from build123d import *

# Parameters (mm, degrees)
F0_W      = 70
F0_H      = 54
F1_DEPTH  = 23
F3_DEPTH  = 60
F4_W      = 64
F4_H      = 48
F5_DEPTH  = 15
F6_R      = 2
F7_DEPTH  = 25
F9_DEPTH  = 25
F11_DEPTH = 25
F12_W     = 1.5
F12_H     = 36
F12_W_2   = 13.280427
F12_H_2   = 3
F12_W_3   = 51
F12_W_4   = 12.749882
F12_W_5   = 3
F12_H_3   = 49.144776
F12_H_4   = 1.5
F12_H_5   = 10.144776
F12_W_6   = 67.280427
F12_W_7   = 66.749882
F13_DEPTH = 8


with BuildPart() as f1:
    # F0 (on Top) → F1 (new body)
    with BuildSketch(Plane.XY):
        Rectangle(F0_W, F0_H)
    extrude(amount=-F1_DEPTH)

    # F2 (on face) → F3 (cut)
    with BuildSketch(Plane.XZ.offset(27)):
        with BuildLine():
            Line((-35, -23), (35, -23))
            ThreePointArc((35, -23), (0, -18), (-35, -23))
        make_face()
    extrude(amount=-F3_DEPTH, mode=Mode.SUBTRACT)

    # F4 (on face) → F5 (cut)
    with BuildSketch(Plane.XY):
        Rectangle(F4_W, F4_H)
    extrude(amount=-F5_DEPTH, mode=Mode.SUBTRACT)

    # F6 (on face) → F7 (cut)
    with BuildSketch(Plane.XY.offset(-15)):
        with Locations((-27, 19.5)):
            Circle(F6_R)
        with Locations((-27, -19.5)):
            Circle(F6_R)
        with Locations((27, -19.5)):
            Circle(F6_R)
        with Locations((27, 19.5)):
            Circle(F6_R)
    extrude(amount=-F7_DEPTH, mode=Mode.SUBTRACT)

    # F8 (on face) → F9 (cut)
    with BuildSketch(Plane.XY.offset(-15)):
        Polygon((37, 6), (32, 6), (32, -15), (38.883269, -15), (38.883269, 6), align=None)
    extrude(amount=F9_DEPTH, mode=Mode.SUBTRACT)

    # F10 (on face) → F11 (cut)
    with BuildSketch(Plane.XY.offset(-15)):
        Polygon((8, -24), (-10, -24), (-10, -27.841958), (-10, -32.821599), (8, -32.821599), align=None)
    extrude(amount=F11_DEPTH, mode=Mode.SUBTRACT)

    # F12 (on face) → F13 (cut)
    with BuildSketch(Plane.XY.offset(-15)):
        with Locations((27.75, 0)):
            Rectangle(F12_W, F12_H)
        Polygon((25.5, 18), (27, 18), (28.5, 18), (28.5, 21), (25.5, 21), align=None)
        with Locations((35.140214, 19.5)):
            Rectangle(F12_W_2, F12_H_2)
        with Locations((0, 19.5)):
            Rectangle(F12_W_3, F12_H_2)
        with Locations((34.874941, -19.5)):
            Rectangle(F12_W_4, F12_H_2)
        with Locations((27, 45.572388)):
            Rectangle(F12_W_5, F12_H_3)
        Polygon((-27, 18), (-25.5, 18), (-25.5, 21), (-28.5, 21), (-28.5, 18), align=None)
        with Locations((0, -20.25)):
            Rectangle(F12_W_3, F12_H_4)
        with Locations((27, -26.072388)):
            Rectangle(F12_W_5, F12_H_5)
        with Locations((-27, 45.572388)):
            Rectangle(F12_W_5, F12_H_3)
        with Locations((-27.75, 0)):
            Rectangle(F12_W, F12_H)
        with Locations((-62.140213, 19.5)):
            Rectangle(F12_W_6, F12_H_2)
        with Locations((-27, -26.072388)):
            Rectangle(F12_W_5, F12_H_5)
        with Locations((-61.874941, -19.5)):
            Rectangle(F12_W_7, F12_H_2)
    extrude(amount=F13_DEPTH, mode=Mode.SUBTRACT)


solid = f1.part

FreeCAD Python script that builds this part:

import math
import FreeCAD as App
import Part
import Sketcher
Q = App.Units.Quantity

doc = App.newDocument("Part")
body = doc.addObject("PartDesign::Body", "Body")

sketch1 = doc.addObject("Sketcher::SketchObject", "Sketch")
body.addObject(sketch1)
sketch1.AttachmentSupport = (doc.XY_Plane, [""])
sketch1.MapMode = "FlatFace"
sketch1.addGeometry(Part.LineSegment(App.Vector(-35, 27, 0), App.Vector(-35, -27, 0)), False)
sketch1.addGeometry(Part.LineSegment(App.Vector(-35, -27, 0), App.Vector(35, -27, 0)), False)
sketch1.addGeometry(Part.LineSegment(App.Vector(35, -27, 0), App.Vector(35, 27, 0)), False)
sketch1.addGeometry(Part.LineSegment(App.Vector(35, 27, 0), App.Vector(-35, 27, 0)), False)
sketch1.addConstraint(Sketcher.Constraint("Coincident", 0, 2, 1, 1))
sketch1.addConstraint(Sketcher.Constraint("Coincident", 1, 2, 2, 1))
sketch1.addConstraint(Sketcher.Constraint("Coincident", 2, 2, 3, 1))
sketch1.addConstraint(Sketcher.Constraint("Coincident", 3, 2, 0, 1))
sketch1.addConstraint(Sketcher.Constraint("Vertical", 0))
sketch1.addConstraint(Sketcher.Constraint("Horizontal", 1))
sketch1.addConstraint(Sketcher.Constraint("Vertical", 2))
sketch1.addConstraint(Sketcher.Constraint("Horizontal", 3))
sketch1.addConstraint(Sketcher.Constraint("Symmetric", 0, 2, 2, 2, -1, 1))
sketch1.addConstraint(Sketcher.Constraint("DistanceX", 1, 1, 1, 2, Q("70 mm")))
sketch1.addConstraint(Sketcher.Constraint("DistanceY", 0, 2, 0, 1, Q("54 mm")))
pad1 = doc.addObject("PartDesign::Pad", "Pad")
body.addObject(pad1)
pad1.Profile = sketch1
pad1.Length = 23
pad1.Reversed = True

sketch2 = doc.addObject("Sketcher::SketchObject", "Sketch001")
body.addObject(sketch2)
sketch2.AttachmentSupport = (doc.XZ_Plane, [""])
sketch2.MapMode = "FlatFace"
sketch2.AttachmentOffset = App.Placement(App.Vector(0, 0, 27), App.Rotation())
sketch2.addGeometry(Part.LineSegment(App.Vector(-35, -23, 0), App.Vector(35, -23, 0)), False)
sketch2.addGeometry(Part.ArcOfCircle(Part.Circle(App.Vector(0, -143, 0), App.Vector(0, 0, 1), 125), math.radians(74), math.radians(106)), False)
sketch2.addConstraint(Sketcher.Constraint("Coincident", 0, 1, 1, 2))
sketch2.addConstraint(Sketcher.Constraint("Coincident", 1, 1, 0, 2))
sketch2.addConstraint(Sketcher.Constraint("Horizontal", 0))
sketch2.addConstraint(Sketcher.Constraint("PointOnObject", 1, 3, -2))
sketch2.addConstraint(Sketcher.Constraint("Radius", 1, Q("125 mm")))
sketch2.addConstraint(Sketcher.Constraint("DistanceX", 0, 1, 0, 2, Q("70 mm")))
sketch2.addConstraint(Sketcher.Constraint("DistanceY", 1, 3, -1, 1, Q("143 mm")))
pocket1 = doc.addObject("PartDesign::Pocket", "Pocket")
body.addObject(pocket1)
pocket1.Profile = sketch2
pocket1.Length = 60

sketch3 = doc.addObject("Sketcher::SketchObject", "Sketch002")
body.addObject(sketch3)
sketch3.AttachmentSupport = (doc.XY_Plane, [""])
sketch3.MapMode = "FlatFace"
sketch3.addGeometry(Part.LineSegment(App.Vector(-32, 24, 0), App.Vector(-32, -24, 0)), False)
sketch3.addGeometry(Part.LineSegment(App.Vector(-32, -24, 0), App.Vector(32, -24, 0)), False)
sketch3.addGeometry(Part.LineSegment(App.Vector(32, -24, 0), App.Vector(32, 24, 0)), False)
sketch3.addGeometry(Part.LineSegment(App.Vector(32, 24, 0), App.Vector(-32, 24, 0)), False)
sketch3.addConstraint(Sketcher.Constraint("Coincident", 0, 2, 1, 1))
sketch3.addConstraint(Sketcher.Constraint("Coincident", 1, 2, 2, 1))
sketch3.addConstraint(Sketcher.Constraint("Coincident", 2, 2, 3, 1))
sketch3.addConstraint(Sketcher.Constraint("Coincident", 3, 2, 0, 1))
sketch3.addConstraint(Sketcher.Constraint("Vertical", 0))
sketch3.addConstraint(Sketcher.Constraint("Horizontal", 1))
sketch3.addConstraint(Sketcher.Constraint("Vertical", 2))
sketch3.addConstraint(Sketcher.Constraint("Horizontal", 3))
sketch3.addConstraint(Sketcher.Constraint("Symmetric", 0, 2, 2, 2, -1, 1))
sketch3.addConstraint(Sketcher.Constraint("DistanceX", 1, 1, 1, 2, Q("64 mm")))
sketch3.addConstraint(Sketcher.Constraint("DistanceY", 0, 2, 0, 1, Q("48 mm")))
pocket2 = doc.addObject("PartDesign::Pocket", "Pocket001")
body.addObject(pocket2)
pocket2.Profile = sketch3
pocket2.Length = 15

sketch4 = doc.addObject("Sketcher::SketchObject", "Sketch003")
body.addObject(sketch4)
sketch4.AttachmentSupport = (doc.XY_Plane, [""])
sketch4.MapMode = "FlatFace"
sketch4.AttachmentOffset = App.Placement(App.Vector(0, 0, -15), App.Rotation())
sketch4.addGeometry(Part.Circle(App.Vector(-27, 19.5, 0), App.Vector(0, 0, 1), 2), False)
sketch4.addGeometry(Part.Circle(App.Vector(-27, -19.5, 0), App.Vector(0, 0, 1), 2), False)
sketch4.addGeometry(Part.Circle(App.Vector(27, -19.5, 0), App.Vector(0, 0, 1), 2), False)
sketch4.addGeometry(Part.Circle(App.Vector(27, 19.5, 0), App.Vector(0, 0, 1), 2), False)
sketch4.addConstraint(Sketcher.Constraint("Equal", 0, 1))
sketch4.addConstraint(Sketcher.Constraint("Equal", 1, 2))
sketch4.addConstraint(Sketcher.Constraint("Equal", 2, 3))
sketch4.addConstraint(Sketcher.Constraint("Symmetric", 0, 3, 2, 3, -1, 1))
sketch4.addConstraint(Sketcher.Constraint("Symmetric", 1, 3, 3, 3, -1, 1))
sketch4.addConstraint(Sketcher.Constraint("Symmetric", 1, 3, 2, 3, -2))
sketch4.addConstraint(Sketcher.Constraint("Diameter", 0, Q("4 mm")))
sketch4.addConstraint(Sketcher.Constraint("DistanceX", 0, 3, -1, 1, Q("27 mm")))
sketch4.addConstraint(Sketcher.Constraint("DistanceY", 1, 3, 0, 3, Q("39 mm")))
pocket3 = doc.addObject("PartDesign::Pocket", "Pocket002")
body.addObject(pocket3)
pocket3.Profile = sketch4
pocket3.Length = 25

sketch5 = doc.addObject("Sketcher::SketchObject", "Sketch004")
body.addObject(sketch5)
sketch5.AttachmentSupport = (doc.XY_Plane, [""])
sketch5.MapMode = "FlatFace"
sketch5.AttachmentOffset = App.Placement(App.Vector(0, 0, -15), App.Rotation())
sketch5.addGeometry(Part.LineSegment(App.Vector(32, 6, 0), App.Vector(32, -15, 0)), False)
sketch5.addGeometry(Part.LineSegment(App.Vector(32, -15, 0), App.Vector(39, -15, 0)), False)
sketch5.addGeometry(Part.LineSegment(App.Vector(39, -15, 0), App.Vector(39, 6, 0)), False)
sketch5.addGeometry(Part.LineSegment(App.Vector(39, 6, 0), App.Vector(32, 6, 0)), False)
sketch5.addConstraint(Sketcher.Constraint("Coincident", 0, 2, 1, 1))
sketch5.addConstraint(Sketcher.Constraint("Coincident", 1, 2, 2, 1))
sketch5.addConstraint(Sketcher.Constraint("Coincident", 2, 2, 3, 1))
sketch5.addConstraint(Sketcher.Constraint("Coincident", 3, 2, 0, 1))
sketch5.addConstraint(Sketcher.Constraint("Vertical", 0))
sketch5.addConstraint(Sketcher.Constraint("Horizontal", 1))
sketch5.addConstraint(Sketcher.Constraint("Vertical", 2))
sketch5.addConstraint(Sketcher.Constraint("Horizontal", 3))
sketch5.addConstraint(Sketcher.Constraint("DistanceY", 0, 2, 0, 1, Q("21 mm")))
sketch5.addConstraint(Sketcher.Constraint("DistanceX", -1, 1, 0, 2, Q("32 mm")))
sketch5.addConstraint(Sketcher.Constraint("DistanceY", 0, 2, -1, 1, Q("15 mm")))
sketch5.addConstraint(Sketcher.Constraint("DistanceX", 1, 1, 1, 2, Q("6.883269 mm")))
pocket4 = doc.addObject("PartDesign::Pocket", "Pocket003")
body.addObject(pocket4)
pocket4.Profile = sketch5
pocket4.Length = 25
pocket4.Reversed = True

sketch6 = doc.addObject("Sketcher::SketchObject", "Sketch005")
body.addObject(sketch6)
sketch6.AttachmentSupport = (doc.XY_Plane, [""])
sketch6.MapMode = "FlatFace"
sketch6.AttachmentOffset = App.Placement(App.Vector(0, 0, -15), App.Rotation())
sketch6.addGeometry(Part.LineSegment(App.Vector(8, -24, 0), App.Vector(-10, -24, 0)), False)
sketch6.addGeometry(Part.LineSegment(App.Vector(-10, -24, 0), App.Vector(-10, -33, 0)), False)
sketch6.addGeometry(Part.LineSegment(App.Vector(-10, -33, 0), App.Vector(8, -33, 0)), False)
sketch6.addGeometry(Part.LineSegment(App.Vector(8, -33, 0), App.Vector(8, -24, 0)), False)
sketch6.addConstraint(Sketcher.Constraint("Coincident", 0, 2, 1, 1))
sketch6.addConstraint(Sketcher.Constraint("Coincident", 1, 2, 2, 1))
sketch6.addConstraint(Sketcher.Constraint("Coincident", 2, 2, 3, 1))
sketch6.addConstraint(Sketcher.Constraint("Coincident", 3, 2, 0, 1))
sketch6.addConstraint(Sketcher.Constraint("Horizontal", 0))
sketch6.addConstraint(Sketcher.Constraint("Vertical", 1))
sketch6.addConstraint(Sketcher.Constraint("Horizontal", 2))
sketch6.addConstraint(Sketcher.Constraint("Vertical", 3))
sketch6.addConstraint(Sketcher.Constraint("DistanceX", 0, 2, 0, 1, Q("18 mm")))
sketch6.addConstraint(Sketcher.Constraint("DistanceX", 0, 2, -1, 1, Q("10 mm")))
sketch6.addConstraint(Sketcher.Constraint("DistanceY", 0, 2, -1, 1, Q("24 mm")))
sketch6.addConstraint(Sketcher.Constraint("DistanceY", 1, 2, 1, 1, Q("8.821599 mm")))
pocket5 = doc.addObject("PartDesign::Pocket", "Pocket004")
body.addObject(pocket5)
pocket5.Profile = sketch6
pocket5.Length = 25
pocket5.Reversed = True

sketch7 = doc.addObject("Sketcher::SketchObject", "Sketch006")
body.addObject(sketch7)
sketch7.AttachmentSupport = (doc.XY_Plane, [""])
sketch7.MapMode = "FlatFace"
sketch7.AttachmentOffset = App.Placement(App.Vector(0, 0, -15), App.Rotation())
sketch7.addGeometry(Part.LineSegment(App.Vector(27, 18, 0), App.Vector(27, -18, 0)), False)
sketch7.addGeometry(Part.LineSegment(App.Vector(27, -18, 0), App.Vector(28.5, -18, 0)), False)
sketch7.addGeometry(Part.LineSegment(App.Vector(28.5, -18, 0), App.Vector(28.5, 70.1, 0)), False)
sketch7.addGeometry(Part.LineSegment(App.Vector(28.5, 70.1, 0), App.Vector(25.5, 70.1, 0)), False)
sketch7.addGeometry(Part.LineSegment(App.Vector(25.5, 70.1, 0), App.Vector(25.5, 21, 0)), False)
sketch7.addGeometry(Part.LineSegment(App.Vector(25.5, 21, 0), App.Vector(-25.5, 21, 0)), False)
sketch7.addGeometry(Part.LineSegment(App.Vector(-25.5, 21, 0), App.Vector(-25.5, 70.1, 0)), False)
sketch7.addGeometry(Part.LineSegment(App.Vector(-25.5, 70.1, 0), App.Vector(-28.5, 70.1, 0)), False)
sketch7.addGeometry(Part.LineSegment(App.Vector(-28.5, 70.1, 0), App.Vector(-28.5, 21, 0)), False)
sketch7.addGeometry(Part.LineSegment(App.Vector(-28.5, 21, 0), App.Vector(-95.8, 21, 0)), False)
sketch7.addGeometry(Part.LineSegment(App.Vector(-95.8, 21, 0), App.Vector(-95.8, 18, 0)), False)
sketch7.addGeometry(Part.LineSegment(App.Vector(-95.8, 18, 0), App.Vector(-28.5, 18, 0)), False)
sketch7.addGeometry(Part.LineSegment(App.Vector(-28.5, 18, 0), App.Vector(-28.5, -18, 0)), False)
sketch7.addGeometry(Part.LineSegment(App.Vector(-28.5, -18, 0), App.Vector(-27, -18, 0)), False)
sketch7.addGeometry(Part.LineSegment(App.Vector(-27, -18, 0), App.Vector(-27, 18, 0)), False)
sketch7.addGeometry(Part.LineSegment(App.Vector(-27, 18, 0), App.Vector(27, 18, 0)), False)
sketch7.addGeometry(Part.LineSegment(App.Vector(28.5, 21, 0), App.Vector(28.5, 18, 0)), False)
sketch7.addGeometry(Part.LineSegment(App.Vector(28.5, 18, 0), App.Vector(41.8, 18, 0)), False)
sketch7.addGeometry(Part.LineSegment(App.Vector(41.8, 18, 0), App.Vector(41.8, 21, 0)), False)
sketch7.addGeometry(Part.LineSegment(App.Vector(41.8, 21, 0), App.Vector(28.5, 21, 0)), False)
sketch7.addGeometry(Part.LineSegment(App.Vector(28.5, -18, 0), App.Vector(28.5, -21, 0)), False)
sketch7.addGeometry(Part.LineSegment(App.Vector(28.5, -21, 0), App.Vector(41.2, -21, 0)), False)
sketch7.addGeometry(Part.LineSegment(App.Vector(41.2, -21, 0), App.Vector(41.2, -18, 0)), False)
sketch7.addGeometry(Part.LineSegment(App.Vector(41.2, -18, 0), App.Vector(28.5, -18, 0)), False)
sketch7.addGeometry(Part.LineSegment(App.Vector(-25.5, -19.5, 0), App.Vector(-25.5, -21, 0)), False)
sketch7.addGeometry(Part.LineSegment(App.Vector(-25.5, -21, 0), App.Vector(25.5, -21, 0)), False)
sketch7.addGeometry(Part.LineSegment(App.Vector(25.5, -21, 0), App.Vector(25.5, -19.5, 0)), False)
sketch7.addGeometry(Part.LineSegment(App.Vector(25.5, -19.5, 0), App.Vector(-25.5, -19.5, 0)), False)
sketch7.addGeometry(Part.LineSegment(App.Vector(25.5, -21, 0), App.Vector(25.5, -31.1, 0)), False)
sketch7.addGeometry(Part.LineSegment(App.Vector(25.5, -31.1, 0), App.Vector(28.5, -31.1, 0)), False)
sketch7.addGeometry(Part.LineSegment(App.Vector(28.5, -31.1, 0), App.Vector(28.5, -21, 0)), False)
sketch7.addGeometry(Part.LineSegment(App.Vector(28.5, -21, 0), App.Vector(25.5, -21, 0)), False)
sketch7.addGeometry(Part.LineSegment(App.Vector(-28.5, -21, 0), App.Vector(-28.5, -31.1, 0)), False)
sketch7.addGeometry(Part.LineSegment(App.Vector(-28.5, -31.1, 0), App.Vector(-25.5, -31.1, 0)), False)
sketch7.addGeometry(Part.LineSegment(App.Vector(-25.5, -31.1, 0), App.Vector(-25.5, -21, 0)), False)
sketch7.addGeometry(Part.LineSegment(App.Vector(-25.5, -21, 0), App.Vector(-28.5, -21, 0)), False)
sketch7.addGeometry(Part.LineSegment(App.Vector(-95.2, -18, 0), App.Vector(-95.2, -21, 0)), False)
sketch7.addGeometry(Part.LineSegment(App.Vector(-95.2, -21, 0), App.Vector(-28.5, -21, 0)), False)
sketch7.addGeometry(Part.LineSegment(App.Vector(-28.5, -21, 0), App.Vector(-28.5, -18, 0)), False)
sketch7.addGeometry(Part.LineSegment(App.Vector(-28.5, -18, 0), App.Vector(-95.2, -18, 0)), False)
sketch7.addConstraint(Sketcher.Constraint("Coincident", 0, 2, 1, 1))
sketch7.addConstraint(Sketcher.Constraint("Coincident", 1, 2, 2, 1))
sketch7.addConstraint(Sketcher.Constraint("Coincident", 2, 2, 3, 1))
sketch7.addConstraint(Sketcher.Constraint("Coincident", 3, 2, 4, 1))
sketch7.addConstraint(Sketcher.Constraint("Coincident", 4, 2, 5, 1))
sketch7.addConstraint(Sketcher.Constraint("Coincident", 5, 2, 6, 1))
sketch7.addConstraint(Sketcher.Constraint("Coincident", 6, 2, 7, 1))
sketch7.addConstraint(Sketcher.Constraint("Coincident", 7, 2, 8, 1))
sketch7.addConstraint(Sketcher.Constraint("Coincident", 8, 2, 9, 1))
sketch7.addConstraint(Sketcher.Constraint("Coincident", 9, 2, 10, 1))
sketch7.addConstraint(Sketcher.Constraint("Coincident", 10, 2, 11, 1))
sketch7.addConstraint(Sketcher.Constraint("Coincident", 11, 2, 12, 1))
sketch7.addConstraint(Sketcher.Constraint("Coincident", 12, 2, 13, 1))
sketch7.addConstraint(Sketcher.Constraint("Coincident", 13, 2, 14, 1))
sketch7.addConstraint(Sketcher.Constraint("Coincident", 14, 2, 15, 1))
sketch7.addConstraint(Sketcher.Constraint("Coincident", 15, 2, 0, 1))
sketch7.addConstraint(Sketcher.Constraint("Coincident", 16, 2, 17, 1))
sketch7.addConstraint(Sketcher.Constraint("Coincident", 17, 2, 18, 1))
sketch7.addConstraint(Sketcher.Constraint("Coincident", 18, 2, 19, 1))
sketch7.addConstraint(Sketcher.Constraint("Coincident", 19, 2, 16, 1))
sketch7.addConstraint(Sketcher.Constraint("Coincident", 20, 2, 21, 1))
sketch7.addConstraint(Sketcher.Constraint("Coincident", 21, 2, 22, 1))
sketch7.addConstraint(Sketcher.Constraint("Coincident", 22, 2, 23, 1))
sketch7.addConstraint(Sketcher.Constraint("Coincident", 23, 2, 20, 1))
sketch7.addConstraint(Sketcher.Constraint("Coincident", 24, 2, 25, 1))
sketch7.addConstraint(Sketcher.Constraint("Coincident", 25, 2, 26, 1))
sketch7.addConstraint(Sketcher.Constraint("Coincident", 26, 2, 27, 1))
sketch7.addConstraint(Sketcher.Constraint("Coincident", 27, 2, 24, 1))
sketch7.addConstraint(Sketcher.Constraint("Coincident", 28, 2, 29, 1))
sketch7.addConstraint(Sketcher.Constraint("Coincident", 29, 2, 30, 1))
sketch7.addConstraint(Sketcher.Constraint("Coincident", 30, 2, 31, 1))
sketch7.addConstraint(Sketcher.Constraint("Coincident", 31, 2, 28, 1))
sketch7.addConstraint(Sketcher.Constraint("Coincident", 32, 2, 33, 1))
sketch7.addConstraint(Sketcher.Constraint("Coincident", 33, 2, 34, 1))
sketch7.addConstraint(Sketcher.Constraint("Coincident", 34, 2, 35, 1))
sketch7.addConstraint(Sketcher.Constraint("Coincident", 35, 2, 32, 1))
sketch7.addConstraint(Sketcher.Constraint("Coincident", 36, 2, 37, 1))
sketch7.addConstraint(Sketcher.Constraint("Coincident", 37, 2, 38, 1))
sketch7.addConstraint(Sketcher.Constraint("Coincident", 38, 2, 39, 1))
sketch7.addConstraint(Sketcher.Constraint("Coincident", 39, 2, 36, 1))
sketch7.addConstraint(Sketcher.Constraint("Vertical", 0))
sketch7.addConstraint(Sketcher.Constraint("Horizontal", 1))
sketch7.addConstraint(Sketcher.Constraint("Vertical", 2))
sketch7.addConstraint(Sketcher.Constraint("Horizontal", 3))
sketch7.addConstraint(Sketcher.Constraint("Vertical", 4))
sketch7.addConstraint(Sketcher.Constraint("Horizontal", 5))
sketch7.addConstraint(Sketcher.Constraint("Vertical", 6))
sketch7.addConstraint(Sketcher.Constraint("Horizontal", 7))
sketch7.addConstraint(Sketcher.Constraint("Vertical", 8))
sketch7.addConstraint(Sketcher.Constraint("Horizontal", 9))
sketch7.addConstraint(Sketcher.Constraint("Vertical", 10))
sketch7.addConstraint(Sketcher.Constraint("Horizontal", 11))
sketch7.addConstraint(Sketcher.Constraint("Vertical", 12))
sketch7.addConstraint(Sketcher.Constraint("Horizontal", 13))
sketch7.addConstraint(Sketcher.Constraint("Vertical", 14))
sketch7.addConstraint(Sketcher.Constraint("Horizontal", 15))
sketch7.addConstraint(Sketcher.Constraint("Vertical", 16))
sketch7.addConstraint(Sketcher.Constraint("Horizontal", 17))
sketch7.addConstraint(Sketcher.Constraint("Vertical", 18))
sketch7.addConstraint(Sketcher.Constraint("Horizontal", 19))
sketch7.addConstraint(Sketcher.Constraint("Vertical", 20))
sketch7.addConstraint(Sketcher.Constraint("Horizontal", 21))
sketch7.addConstraint(Sketcher.Constraint("Vertical", 22))
sketch7.addConstraint(Sketcher.Constraint("Horizontal", 23))
sketch7.addConstraint(Sketcher.Constraint("Vertical", 24))
sketch7.addConstraint(Sketcher.Constraint("Horizontal", 25))
sketch7.addConstraint(Sketcher.Constraint("Vertical", 26))
sketch7.addConstraint(Sketcher.Constraint("Horizontal", 27))
sketch7.addConstraint(Sketcher.Constraint("Vertical", 28))
sketch7.addConstraint(Sketcher.Constraint("Horizontal", 29))
sketch7.addConstraint(Sketcher.Constraint("Vertical", 30))
sketch7.addConstraint(Sketcher.Constraint("Horizontal", 31))
sketch7.addConstraint(Sketcher.Constraint("Vertical", 32))
sketch7.addConstraint(Sketcher.Constraint("Horizontal", 33))
sketch7.addConstraint(Sketcher.Constraint("Vertical", 34))
sketch7.addConstraint(Sketcher.Constraint("Horizontal", 35))
sketch7.addConstraint(Sketcher.Constraint("Vertical", 36))
sketch7.addConstraint(Sketcher.Constraint("Horizontal", 37))
sketch7.addConstraint(Sketcher.Constraint("Vertical", 38))
sketch7.addConstraint(Sketcher.Constraint("Horizontal", 39))
sketch7.addConstraint(Sketcher.Constraint("Coincident", 23, 2, 1, 2))
sketch7.addConstraint(Sketcher.Constraint("Coincident", 30, 2, 20, 2))
sketch7.addConstraint(Sketcher.Constraint("Coincident", 31, 2, 25, 2))
sketch7.addConstraint(Sketcher.Constraint("Coincident", 34, 2, 24, 2))
sketch7.addConstraint(Sketcher.Constraint("Coincident", 37, 2, 35, 2))
sketch7.addConstraint(Sketcher.Constraint("Coincident", 38, 2, 12, 2))
sketch7.addConstraint(Sketcher.Constraint("Symmetric", 1, 2, 11, 2, -1, 1))
sketch7.addConstraint(Sketcher.Constraint("Symmetric", 0, 2, 14, 2, -1, 1))
sketch7.addConstraint(Sketcher.Constraint("Symmetric", 12, 2, 16, 2, -1, 1))
sketch7.addConstraint(Sketcher.Constraint("Symmetric", 8, 2, 20, 2, -1, 1))
sketch7.addConstraint(Sketcher.Constraint("Symmetric", 4, 2, 24, 2, -1, 1))
sketch7.addConstraint(Sketcher.Constraint("Symmetric", 3, 2, 6, 2, -2))
sketch7.addConstraint(Sketcher.Constraint("Symmetric", 28, 2, 33, 2, -2))
sketch7.addConstraint(Sketcher.Constraint("Horizontal", 1, 2, 12, 2))
sketch7.addConstraint(Sketcher.Constraint("Horizontal", 9, 2, 18, 2))
sketch7.addConstraint(Sketcher.Constraint("Equal", 35, 10))
sketch7.addConstraint(Sketcher.Constraint("Equal", 13, 24))
sketch7.addConstraint(Sketcher.Constraint("DistanceX", 3, 2, 3, 1, Q("3 mm")))
sketch7.addConstraint(Sketcher.Constraint("DistanceX", 5, 2, 5, 1, Q("51 mm")))
sketch7.addConstraint(Sketcher.Constraint("DistanceX", 15, 1, 15, 2, Q("54 mm")))
sketch7.addConstraint(Sketcher.Constraint("DistanceY", 0, 2, 0, 1, Q("36 mm")))
sketch7.addConstraint(Sketcher.Constraint("DistanceX", 37, 1, 37, 2, Q("66.749882 mm")))
sketch7.addConstraint(Sketcher.Constraint("DistanceX", 9, 2, 9, 1, Q("67.280427 mm")))
sketch7.addConstraint(Sketcher.Constraint("DistanceX", 17, 1, 17, 2, Q("13.280427 mm")))
sketch7.addConstraint(Sketcher.Constraint("DistanceX", 21, 1, 21, 2, Q("12.749882 mm")))
sketch7.addConstraint(Sketcher.Constraint("DistanceY", 2, 1, 2, 2, Q("88.144776 mm")))
sketch7.addConstraint(Sketcher.Constraint("DistanceY", 28, 2, 28, 1, Q("10.144776 mm")))
pocket6 = doc.addObject("PartDesign::Pocket", "Pocket005")
body.addObject(pocket6)
pocket6.Profile = sketch7
pocket6.Length = 8
pocket6.Reversed = True

doc.recompute()
